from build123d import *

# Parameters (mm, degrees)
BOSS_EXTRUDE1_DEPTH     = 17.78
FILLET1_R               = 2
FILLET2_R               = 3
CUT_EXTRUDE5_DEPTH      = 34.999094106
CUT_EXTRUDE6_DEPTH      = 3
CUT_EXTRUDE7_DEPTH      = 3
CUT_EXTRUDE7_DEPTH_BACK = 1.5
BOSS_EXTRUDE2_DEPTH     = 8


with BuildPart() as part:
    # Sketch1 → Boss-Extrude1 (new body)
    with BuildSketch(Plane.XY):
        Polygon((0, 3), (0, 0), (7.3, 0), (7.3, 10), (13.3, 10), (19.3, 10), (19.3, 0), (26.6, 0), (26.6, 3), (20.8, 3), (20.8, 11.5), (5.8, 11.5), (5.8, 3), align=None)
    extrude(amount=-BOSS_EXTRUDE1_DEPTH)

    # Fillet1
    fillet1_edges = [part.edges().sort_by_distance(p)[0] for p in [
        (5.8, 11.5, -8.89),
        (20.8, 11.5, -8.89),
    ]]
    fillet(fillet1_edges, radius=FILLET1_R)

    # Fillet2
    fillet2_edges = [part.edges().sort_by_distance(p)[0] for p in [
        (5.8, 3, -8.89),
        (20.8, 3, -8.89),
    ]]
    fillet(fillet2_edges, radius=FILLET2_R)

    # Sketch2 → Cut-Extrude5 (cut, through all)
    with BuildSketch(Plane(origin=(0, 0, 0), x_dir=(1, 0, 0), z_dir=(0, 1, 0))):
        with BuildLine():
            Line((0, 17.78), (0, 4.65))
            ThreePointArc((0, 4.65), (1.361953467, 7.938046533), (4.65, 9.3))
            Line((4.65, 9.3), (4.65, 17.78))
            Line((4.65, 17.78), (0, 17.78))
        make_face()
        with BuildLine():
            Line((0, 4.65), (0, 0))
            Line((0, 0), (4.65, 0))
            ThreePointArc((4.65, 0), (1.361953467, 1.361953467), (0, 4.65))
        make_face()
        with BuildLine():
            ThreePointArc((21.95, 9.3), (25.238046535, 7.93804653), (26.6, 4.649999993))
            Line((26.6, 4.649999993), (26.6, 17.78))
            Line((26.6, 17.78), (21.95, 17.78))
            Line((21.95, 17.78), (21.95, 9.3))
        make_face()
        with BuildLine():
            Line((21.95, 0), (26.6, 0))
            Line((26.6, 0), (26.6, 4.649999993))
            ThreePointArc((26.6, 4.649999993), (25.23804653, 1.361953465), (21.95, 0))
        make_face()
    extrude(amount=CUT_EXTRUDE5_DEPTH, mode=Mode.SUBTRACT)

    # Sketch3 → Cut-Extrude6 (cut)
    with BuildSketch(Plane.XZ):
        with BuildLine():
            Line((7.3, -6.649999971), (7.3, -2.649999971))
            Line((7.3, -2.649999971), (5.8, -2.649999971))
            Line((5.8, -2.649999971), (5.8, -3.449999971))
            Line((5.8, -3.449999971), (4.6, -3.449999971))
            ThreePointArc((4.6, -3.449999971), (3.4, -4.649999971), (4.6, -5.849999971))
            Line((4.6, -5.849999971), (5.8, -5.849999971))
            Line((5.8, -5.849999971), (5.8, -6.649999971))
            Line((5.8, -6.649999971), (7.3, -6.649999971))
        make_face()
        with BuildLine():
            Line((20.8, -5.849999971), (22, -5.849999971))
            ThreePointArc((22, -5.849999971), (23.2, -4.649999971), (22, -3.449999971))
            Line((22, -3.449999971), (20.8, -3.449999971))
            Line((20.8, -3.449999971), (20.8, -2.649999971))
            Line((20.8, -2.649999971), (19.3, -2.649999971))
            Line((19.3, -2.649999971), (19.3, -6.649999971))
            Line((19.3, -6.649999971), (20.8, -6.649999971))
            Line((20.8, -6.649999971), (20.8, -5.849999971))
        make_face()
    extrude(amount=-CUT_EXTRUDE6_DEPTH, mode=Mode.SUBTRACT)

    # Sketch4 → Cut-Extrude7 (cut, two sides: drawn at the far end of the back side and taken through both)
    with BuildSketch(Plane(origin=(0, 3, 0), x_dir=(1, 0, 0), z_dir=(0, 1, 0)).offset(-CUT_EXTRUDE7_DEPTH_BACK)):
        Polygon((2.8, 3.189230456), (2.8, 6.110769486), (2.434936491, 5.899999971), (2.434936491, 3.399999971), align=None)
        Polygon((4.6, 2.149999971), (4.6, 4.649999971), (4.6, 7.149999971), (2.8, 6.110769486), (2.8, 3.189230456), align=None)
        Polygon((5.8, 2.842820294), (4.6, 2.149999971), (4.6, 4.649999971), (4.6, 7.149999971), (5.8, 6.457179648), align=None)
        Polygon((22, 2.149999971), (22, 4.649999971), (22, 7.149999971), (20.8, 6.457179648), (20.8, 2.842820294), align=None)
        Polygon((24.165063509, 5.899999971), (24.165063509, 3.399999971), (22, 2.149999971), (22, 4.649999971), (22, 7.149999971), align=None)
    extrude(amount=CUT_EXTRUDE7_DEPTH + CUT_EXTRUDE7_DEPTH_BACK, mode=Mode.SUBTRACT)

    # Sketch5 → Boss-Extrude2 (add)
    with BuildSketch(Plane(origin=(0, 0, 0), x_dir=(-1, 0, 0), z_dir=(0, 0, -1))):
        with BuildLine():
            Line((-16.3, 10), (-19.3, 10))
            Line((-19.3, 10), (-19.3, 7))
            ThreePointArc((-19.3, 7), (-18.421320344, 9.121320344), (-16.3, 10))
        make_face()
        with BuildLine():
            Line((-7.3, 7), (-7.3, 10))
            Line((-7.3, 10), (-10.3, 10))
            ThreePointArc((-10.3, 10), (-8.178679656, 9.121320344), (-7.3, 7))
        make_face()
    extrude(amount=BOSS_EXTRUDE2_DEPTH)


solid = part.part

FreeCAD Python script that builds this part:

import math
import FreeCAD as App
import Part
import Sketcher
from FreeCAD import Vector
Q = App.Units.Quantity


def edges_at(feature, points):
    """Names of the edges that pass closest to the given points."""
    edges = feature.Shape.Edges
    near = lambda p: min(range(len(edges)), key=lambda i: edges[i].distToShape(Part.Vertex(*p))[0])
    return sorted({f"Edge{near(p) + 1}" for p in points})


def add_polygon(sketch, points):
    """Adds a closed chain of lines whose ends are joined by coincident constraints."""
    first, n = sketch.GeometryCount, len(points)
    for a, b in zip(points, points[1:] + points[:1]):
        sketch.addGeometry(Part.LineSegment(App.Vector(*a, 0), App.Vector(*b, 0)), False)
    for i in range(n):
        sketch.addConstraint(Sketcher.Constraint("Coincident", first + i, 2, first + (i + 1) % n, 1))

doc = App.newDocument("Part")
body = doc.addObject("PartDesign::Body", "Body")

# Sketch on XY plane
sketch1 = body.newObject("Sketcher::SketchObject", "Sketch")
sketch1.AttachmentSupport = (doc.getObject("XY_Plane"), [""])
sketch1.MapMode = "FlatFace"
add_polygon(sketch1, [(0, 3), (0, 0), (7.3, 0), (7.3, 10), (19.3, 10), (19.3, 0), (26.6, 0), (26.6, 3), (20.8, 3), (20.8, 11.5), (5.8, 11.5), (5.8, 3)])  # lines 0-11
sketch1.addConstraint([
    Sketcher.Constraint("Vertical", 0),
    Sketcher.Constraint("Horizontal", 1),
    Sketcher.Constraint("Vertical", 2),
    Sketcher.Constraint("Horizontal", 3),
    Sketcher.Constraint("Vertical", 4),
    Sketcher.Constraint("Horizontal", 5),
    Sketcher.Constraint("Vertical", 6),
    Sketcher.Constraint("Horizontal", 7),
    Sketcher.Constraint("Vertical", 8),
    Sketcher.Constraint("Horizontal", 9),
    Sketcher.Constraint("Vertical", 10),
    Sketcher.Constraint("Horizontal", 11),
    Sketcher.Constraint("Coincident", 0, 2, -1, 1),
    Sketcher.Constraint("PointOnObject", 4, 2, -1),
    Sketcher.Constraint("Horizontal", 7, 2, 10, 2),
    Sketcher.Constraint("Equal", 1, 5),
    Sketcher.Constraint("Equal", 7, 11),
    Sketcher.Constraint("DistanceX", 3, 1, 3, 2, Q("12 mm")),
    Sketcher.Constraint("DistanceX", 9, 2, 9, 1, Q("15 mm")),
    Sketcher.Constraint("DistanceY", 0, 2, 0, 1, Q("3 mm")),
    Sketcher.Constraint("DistanceY", 2, 1, 2, 2, Q("10 mm")),
    Sketcher.Constraint("DistanceX", 1, 1, 1, 2, Q("7.3 mm")),
    Sketcher.Constraint("DistanceY", 8, 1, 8, 2, Q("8.5 mm")),
])
pad1 = body.newObject("PartDesign::Pad", "Pad")
pad1.Profile = sketch1
pad1.Length = 17.78
pad1.Reversed = True
doc.recompute()

fillet = body.newObject("PartDesign::Fillet", "Fillet")
fillet.Base = (pad1, edges_at(pad1, [(5.8, 11.5, -8.89), (20.8, 11.5, -8.89)]))
fillet.Radius = 2
doc.recompute()

fillet2 = body.newObject("PartDesign::Fillet", "Fillet001")
fillet2.Base = (fillet, edges_at(fillet, [(5.8, 3, -8.89), (20.8, 3, -8.89)]))
fillet2.Radius = 3

# Sketch on XZ plane
sketch2 = body.newObject("Sketcher::SketchObject", "Sketch001")
sketch2.AttachmentSupport = (doc.getObject("XZ_Plane"), [""])
sketch2.MapMode = "FlatFace"
sketch2.addGeometry([
    Part.LineSegment(Vector(0, -17.8, 0), Vector(0, -4.7, 0)),  # 0
    Part.ArcOfCircle(Part.Circle(Vector(4.6, -4.7, 0), Vector(0, 0, 1), 4.6), math.radians(180), math.radians(270)),  # 1
    Part.LineSegment(Vector(4.7, -9.3, 0), Vector(4.7, -17.8, 0)),  # 2
    Part.LineSegment(Vector(4.7, -17.8, 0), Vector(0, -17.8, 0)),  # 3
    Part.LineSegment(Vector(0, -4.7, 0), Vector(0, 0, 0)),  # 4
    Part.LineSegment(Vector(0, 0, 0), Vector(4.7, 0, 0)),  # 5
    Part.ArcOfCircle(Part.Circle(Vector(4.6, -4.6, 0), Vector(0, 0, 1), 4.6), math.radians(90), math.radians(180)),  # 6
    Part.ArcOfCircle(Part.Circle(Vector(21.9, -4.7, 0), Vector(0, 0, 1), 4.7), math.radians(-90), math.radians(0)),  # 7
    Part.LineSegment(Vector(26.6, -4.6, 0), Vector(26.6, -17.8, 0)),  # 8
    Part.LineSegment(Vector(26.6, -17.8, 0), Vector(21.9, -17.8, 0)),  # 9
    Part.LineSegment(Vector(21.9, -17.8, 0), Vector(21.9, -9.3, 0)),  # 10
    Part.LineSegment(Vector(21.9, 0, 0), Vector(26.6, 0, 0)),  # 11
    Part.LineSegment(Vector(26.6, 0, 0), Vector(26.6, -4.6, 0)),  # 12
    Part.ArcOfCircle(Part.Circle(Vector(21.9, -4.7, 0), Vector(0, 0, 1), 4.7), math.radians(0), math.radians(90)),  # 13
], False)
sketch2.addConstraint([
    Sketcher.Constraint("Tangent", 0, 2, 1, 1),
    Sketcher.Constraint("Coincident", 1, 2, 2, 1),
    Sketcher.Constraint("Coincident", 2, 2, 3, 1),
    Sketcher.Constraint("Coincident", 3, 2, 0, 1),
    Sketcher.Constraint("Coincident", 4, 2, 5, 1),
    Sketcher.Constraint("Tangent", 5, 2, 6, 1),
    Sketcher.Constraint("Tangent", 6, 2, 4, 1),
    Sketcher.Constraint("Tangent", 7, 2, 8, 1),
    Sketcher.Constraint("Coincident", 8, 2, 9, 1),
    Sketcher.Constraint("Coincident", 9, 2, 10, 1),
    Sketcher.Constraint("Coincident", 10, 2, 7, 1),
    Sketcher.Constraint("Coincident", 11, 2, 12, 1),
    Sketcher.Constraint("Tangent", 12, 2, 13, 1),
    Sketcher.Constraint("Tangent", 13, 2, 11, 1),
    Sketcher.Constraint("Vertical", 0),
    Sketcher.Constraint("Vertical", 2),
    Sketcher.Constraint("Horizontal", 3),
    Sketcher.Constraint("Vertical", 4),
    Sketcher.Constraint("Horizontal", 5),
    Sketcher.Constraint("Vertical", 8),
    Sketcher.Constraint("Horizontal", 9),
    Sketcher.Constraint("Vertical", 10),
    Sketcher.Constraint("Horizontal", 11),
    Sketcher.Constraint("Vertical", 12),
    Sketcher.Constraint("Coincident", 4, 2, -1, 1),
    Sketcher.Constraint("Coincident", 6, 3, 1, 3),
    Sketcher.Constraint("Coincident", 13, 3, 7, 3),
    Sketcher.Constraint("Equal", 1, 6),
    Sketcher.Constraint("Equal", 6, 7),
    Sketcher.Constraint("Equal", 7, 13),
    Sketcher.Constraint("PointOnObject", 11, 2, -1),
    Sketcher.Constraint("Horizontal", 3, 2, 8, 2),
    Sketcher.Constraint("Vertical", 6, 3, 1, 2),
    Sketcher.Constraint("Vertical", 13, 3, 9, 2),
    Sketcher.Constraint("Radius", 1, Q("4.65 mm")),
    Sketcher.Constraint("DistanceY", 0, 1, 0, 2, Q("13.13 mm")),
    Sketcher.Constraint("DistanceX", -1, 1, 7, 2, Q("26.6 mm")),
])
pocket1 = body.newObject("PartDesign::Pocket", "Pocket")
pocket1.Profile = sketch2
pocket1.Type = "ThroughAll"

# Sketch on XZ plane
sketch3 = body.newObject("Sketcher::SketchObject", "Sketch002")
sketch3.AttachmentSupport = (doc.getObject("XZ_Plane"), [""])
sketch3.MapMode = "FlatFace"
sketch3.addGeometry([
    Part.LineSegment(Vector(7.3, -6.6, 0), Vector(7.3, -2.6, 0)),  # 0
    Part.LineSegment(Vector(7.3, -2.6, 0), Vector(5.8, -2.6, 0)),  # 1
    Part.LineSegment(Vector(5.8, -2.6, 0), Vector(5.8, -3.4, 0)),  # 2
    Part.LineSegment(Vector(5.8, -3.4, 0), Vector(4.6, -3.4, 0)),  # 3
    Part.ArcOfCircle(Part.Circle(Vector(4.6, -4.6, 0), Vector(0, 0, 1), 1.2), math.radians(90), math.radians(270)),  # 4
    Part.LineSegment(Vector(4.6, -5.8, 0), Vector(5.8, -5.8, 0)),  # 5
    Part.LineSegment(Vector(5.8, -5.8, 0), Vector(5.8, -6.6, 0)),  # 6
    Part.LineSegment(Vector(5.8, -6.6, 0), Vector(7.3, -6.6, 0)),  # 7
    Part.LineSegment(Vector(20.8, -5.8, 0), Vector(22, -5.8, 0)),  # 8
    Part.ArcOfCircle(Part.Circle(Vector(22, -4.6, 0), Vector(0, 0, 1), 1.2), math.radians(-90), math.radians(90)),  # 9
    Part.LineSegment(Vector(22, -3.4, 0), Vector(20.8, -3.4, 0)),  # 10
    Part.LineSegment(Vector(20.8, -3.4, 0), Vector(20.8, -2.6, 0)),  # 11
    Part.LineSegment(Vector(20.8, -2.6, 0), Vector(19.3, -2.6, 0)),  # 12
    Part.LineSegment(Vector(19.3, -2.6, 0), Vector(19.3, -6.6, 0)),  # 13
    Part.LineSegment(Vector(19.3, -6.6, 0), Vector(20.8, -6.6, 0)),  # 14
    Part.LineSegment(Vector(20.8, -6.6, 0), Vector(20.8, -5.8, 0)),  # 15
], False)
sketch3.addConstraint([
    Sketcher.Constraint("Coincident", 0, 2, 1, 1),
    Sketcher.Constraint("Coincident", 1, 2, 2, 1),
    Sketcher.Constraint("Coincident", 2, 2, 3, 1),
    Sketcher.Constraint("Tangent", 3, 2, 4, 1),
    Sketcher.Constraint("Tangent", 4, 2, 5, 1),
    Sketcher.Constraint("Coincident", 5, 2, 6, 1),
    Sketcher.Constraint("Coincident", 6, 2, 7, 1),
    Sketcher.Constraint("Coincident", 7, 2, 0, 1),
    Sketcher.Constraint("Tangent", 8, 2, 9, 1),
    Sketcher.Constraint("Tangent", 9, 2, 10, 1),
    Sketcher.Constraint("Coincident", 10, 2, 11, 1),
    Sketcher.Constraint("Coincident", 11, 2, 12, 1),
    Sketcher.Constraint("Coincident", 12, 2, 13, 1),
    Sketcher.Constraint("Coincident", 13, 2, 14, 1),
    Sketcher.Constraint("Coincident", 14, 2, 15, 1),
    Sketcher.Constraint("Coincident", 15, 2, 8, 1),
    Sketcher.Constraint("Vertical", 0),
    Sketcher.Constraint("Horizontal", 1),
    Sketcher.Constraint("Vertical", 2),
    Sketcher.Constraint("Horizontal", 3),
    Sketcher.Constraint("Horizontal", 5),
    Sketcher.Constraint("Vertical", 6),
    Sketcher.Constraint("Horizontal", 7),
    Sketcher.Constraint("Horizontal", 8),
    Sketcher.Constraint("Horizontal", 10),
    Sketcher.Constraint("Vertical", 11),
    Sketcher.Constraint("Horizontal", 12),
    Sketcher.Constraint("Vertical", 13),
    Sketcher.Constraint("Horizontal", 14),
    Sketcher.Constraint("Vertical", 15),
    Sketcher.Constraint("Equal", 4, 9),
    Sketcher.Constraint("Horizontal", 4, 3, 9, 3),
    Sketcher.Constraint("Horizontal", 1, 2, 11, 2),
    Sketcher.Constraint("Horizontal", 7, 2, 13, 2),
    Sketcher.Constraint("Vertical", 2, 2, 5, 2),
    Sketcher.Constraint("Vertical", 11, 2, 14, 2),
    Sketcher.Constraint("Equal", 5, 8),
    Sketcher.Constraint("Equal", 7, 12),
    Sketcher.Constraint("Equal", 2, 6),
    Sketcher.Constraint("Radius", 4, Q("1.2 mm")),
    Sketcher.Constraint("DistanceY", 0, 1, 0, 2, Q("4 mm")),
    Sketcher.Constraint("DistanceX", 1, 2, 1, 1, Q("1.5 mm")),
    Sketcher.Constraint("DistanceX", 3, 2, 3, 1, Q("1.2 mm")),
    Sketcher.Constraint("DistanceX", -1, 1, 9, 3, Q("22 mm")),
    Sketcher.Constraint("DistanceX", -1, 1, 4, 3, Q("4.6 mm")),
    Sketcher.Constraint("DistanceY", 4, 3, -1, 1, Q("4.65 mm")),
])
pocket2 = body.newObject("PartDesign::Pocket", "Pocket001")
pocket2.Profile = sketch3
pocket2.Length = 3

# Sketch on XZ plane
sketch4 = body.newObject("Sketcher::SketchObject", "Sketch003")
sketch4.AttachmentSupport = (doc.getObject("XZ_Plane"), [""])
sketch4.MapMode = "FlatFace"
sketch4.AttachmentOffset = App.Placement(Vector(0, 0, -3), App.Rotation())
add_polygon(sketch4, [(2.8, -6.11), (2.43, -5.9), (2.43, -3.4), (2.8, -3.19), (4.6, -2.15), (5.8, -2.84), (5.8, -6.46), (4.6, -7.15)])  # lines 0-7
add_polygon(sketch4, [(22, -7.15), (20.8, -6.46), (20.8, -2.84), (22, -2.15), (24.17, -3.4), (24.17, -5.9)])  # lines 8-13
sketch4.addConstraint([
    Sketcher.Constraint("Vertical", 1),
    Sketcher.Constraint("Vertical", 5),
    Sketcher.Constraint("Vertical", 9),
    Sketcher.Constraint("Vertical", 12),
    Sketcher.Constraint("Parallel", 2, 3),
    Sketcher.Constraint("Parallel", 0, 4),
    Sketcher.Constraint("Parallel", 3, 6),
    Sketcher.Constraint("Parallel", 4, 7),
    Sketcher.Constraint("Parallel", 7, 8),
    Sketcher.Constraint("Parallel", 6, 10),
    Sketcher.Constraint("Parallel", 8, 11),
    Sketcher.Constraint("Parallel", 10, 13),
    Sketcher.Constraint("Horizontal", 5, 2, 8, 2),
    Sketcher.Constraint("Horizontal", 4, 2, 9, 2),
    Sketcher.Constraint("Horizontal", 3, 2, 10, 2),
    Sketcher.Constraint("Horizontal", 1, 2, 11, 2),
    Sketcher.Constraint("Horizontal", 0, 2, 12, 2),
    Sketcher.Constraint("Horizontal", 6, 2, 13, 2),
    Sketcher.Constraint("Vertical", 3, 2, 6, 2),
    Sketcher.Constraint("Vertical", 2, 2, 7, 2),
    Sketcher.Constraint("Angle", 0, Q("150 deg")),
    Sketcher.Constraint("DistanceY", 1, 1, 1, 2, Q("2.5 mm")),
    Sketcher.Constraint("DistanceX", -1, 1, 10, 2, Q("22 mm")),
    Sketcher.Constraint("DistanceX", 2, 2, 4, 2, Q("3 mm")),
    Sketcher.Constraint("DistanceX", 5, 2, 8, 2, Q("15 mm")),
    Sketcher.Constraint("DistanceY", 13, 2, 10, 2, Q("5 mm")),
    Sketcher.Constraint("DistanceY", 0, 2, -1, 1, Q("5.9 mm")),
    Sketcher.Constraint("DistanceX", -1, 1, 2, 2, Q("2.8 mm")),
])
pocket3 = body.newObject("PartDesign::Pocket", "Pocket002")
pocket3.Profile = sketch4
pocket3.Type = "TwoLengths"
pocket3.Length = 3
pocket3.Length2 = 1.5

# Sketch on XY plane
sketch5 = body.newObject("Sketcher::SketchObject", "Sketch004")
sketch5.AttachmentSupport = (doc.getObject("XY_Plane"), [""])
sketch5.MapMode = "FlatFace"
sketch5.addGeometry([
    Part.LineSegment(Vector(16.3, 10, 0), Vector(19.3, 10, 0)),  # 0
    Part.LineSegment(Vector(19.3, 10, 0), Vector(19.3, 7, 0)),  # 1
    Part.ArcOfCircle(Part.Circle(Vector(16.3, 7, 0), Vector(0, 0, 1), 3), math.radians(0), math.radians(90)),  # 2
    Part.LineSegment(Vector(7.3, 7, 0), Vector(7.3, 10, 0)),  # 3
    Part.LineSegment(Vector(7.3, 10, 0), Vector(10.3, 10, 0)),  # 4
    Part.ArcOfCircle(Part.Circle(Vector(10.3, 7, 0), Vector(0, 0, 1), 3), math.radians(90), math.radians(180)),  # 5
], False)
sketch5.addConstraint([
    Sketcher.Constraint("Coincident", 0, 2, 1, 1),
    Sketcher.Constraint("Tangent", 1, 2, 2, 1),
    Sketcher.Constraint("Tangent", 2, 2, 0, 1),
    Sketcher.Constraint("Coincident", 3, 2, 4, 1),
    Sketcher.Constraint("Tangent", 4, 2, 5, 1),
    Sketcher.Constraint("Tangent", 5, 2, 3, 1),
    Sketcher.Constraint("Horizontal", 0),
    Sketcher.Constraint("Vertical", 1),
    Sketcher.Constraint("Vertical", 3),
    Sketcher.Constraint("Horizontal", 4),
    Sketcher.Constraint("Equal", 2, 5),
    Sketcher.Constraint("Horizontal", 2, 3, 5, 3),
    Sketcher.Constraint("Radius", 2, Q("3 mm")),
    Sketcher.Constraint("DistanceY", -1, 1, 2, 3, Q("7 mm")),
    Sketcher.Constraint("DistanceX", 5, 3, 2, 3, Q("6 mm")),
    Sketcher.Constraint("DistanceX", -1, 1, 2, 3, Q("16.3 mm")),
])
pad2 = body.newObject("PartDesign::Pad", "Pad001")
pad2.Profile = sketch5
pad2.Length = 8
pad2.Reversed = True

doc.recompute()
